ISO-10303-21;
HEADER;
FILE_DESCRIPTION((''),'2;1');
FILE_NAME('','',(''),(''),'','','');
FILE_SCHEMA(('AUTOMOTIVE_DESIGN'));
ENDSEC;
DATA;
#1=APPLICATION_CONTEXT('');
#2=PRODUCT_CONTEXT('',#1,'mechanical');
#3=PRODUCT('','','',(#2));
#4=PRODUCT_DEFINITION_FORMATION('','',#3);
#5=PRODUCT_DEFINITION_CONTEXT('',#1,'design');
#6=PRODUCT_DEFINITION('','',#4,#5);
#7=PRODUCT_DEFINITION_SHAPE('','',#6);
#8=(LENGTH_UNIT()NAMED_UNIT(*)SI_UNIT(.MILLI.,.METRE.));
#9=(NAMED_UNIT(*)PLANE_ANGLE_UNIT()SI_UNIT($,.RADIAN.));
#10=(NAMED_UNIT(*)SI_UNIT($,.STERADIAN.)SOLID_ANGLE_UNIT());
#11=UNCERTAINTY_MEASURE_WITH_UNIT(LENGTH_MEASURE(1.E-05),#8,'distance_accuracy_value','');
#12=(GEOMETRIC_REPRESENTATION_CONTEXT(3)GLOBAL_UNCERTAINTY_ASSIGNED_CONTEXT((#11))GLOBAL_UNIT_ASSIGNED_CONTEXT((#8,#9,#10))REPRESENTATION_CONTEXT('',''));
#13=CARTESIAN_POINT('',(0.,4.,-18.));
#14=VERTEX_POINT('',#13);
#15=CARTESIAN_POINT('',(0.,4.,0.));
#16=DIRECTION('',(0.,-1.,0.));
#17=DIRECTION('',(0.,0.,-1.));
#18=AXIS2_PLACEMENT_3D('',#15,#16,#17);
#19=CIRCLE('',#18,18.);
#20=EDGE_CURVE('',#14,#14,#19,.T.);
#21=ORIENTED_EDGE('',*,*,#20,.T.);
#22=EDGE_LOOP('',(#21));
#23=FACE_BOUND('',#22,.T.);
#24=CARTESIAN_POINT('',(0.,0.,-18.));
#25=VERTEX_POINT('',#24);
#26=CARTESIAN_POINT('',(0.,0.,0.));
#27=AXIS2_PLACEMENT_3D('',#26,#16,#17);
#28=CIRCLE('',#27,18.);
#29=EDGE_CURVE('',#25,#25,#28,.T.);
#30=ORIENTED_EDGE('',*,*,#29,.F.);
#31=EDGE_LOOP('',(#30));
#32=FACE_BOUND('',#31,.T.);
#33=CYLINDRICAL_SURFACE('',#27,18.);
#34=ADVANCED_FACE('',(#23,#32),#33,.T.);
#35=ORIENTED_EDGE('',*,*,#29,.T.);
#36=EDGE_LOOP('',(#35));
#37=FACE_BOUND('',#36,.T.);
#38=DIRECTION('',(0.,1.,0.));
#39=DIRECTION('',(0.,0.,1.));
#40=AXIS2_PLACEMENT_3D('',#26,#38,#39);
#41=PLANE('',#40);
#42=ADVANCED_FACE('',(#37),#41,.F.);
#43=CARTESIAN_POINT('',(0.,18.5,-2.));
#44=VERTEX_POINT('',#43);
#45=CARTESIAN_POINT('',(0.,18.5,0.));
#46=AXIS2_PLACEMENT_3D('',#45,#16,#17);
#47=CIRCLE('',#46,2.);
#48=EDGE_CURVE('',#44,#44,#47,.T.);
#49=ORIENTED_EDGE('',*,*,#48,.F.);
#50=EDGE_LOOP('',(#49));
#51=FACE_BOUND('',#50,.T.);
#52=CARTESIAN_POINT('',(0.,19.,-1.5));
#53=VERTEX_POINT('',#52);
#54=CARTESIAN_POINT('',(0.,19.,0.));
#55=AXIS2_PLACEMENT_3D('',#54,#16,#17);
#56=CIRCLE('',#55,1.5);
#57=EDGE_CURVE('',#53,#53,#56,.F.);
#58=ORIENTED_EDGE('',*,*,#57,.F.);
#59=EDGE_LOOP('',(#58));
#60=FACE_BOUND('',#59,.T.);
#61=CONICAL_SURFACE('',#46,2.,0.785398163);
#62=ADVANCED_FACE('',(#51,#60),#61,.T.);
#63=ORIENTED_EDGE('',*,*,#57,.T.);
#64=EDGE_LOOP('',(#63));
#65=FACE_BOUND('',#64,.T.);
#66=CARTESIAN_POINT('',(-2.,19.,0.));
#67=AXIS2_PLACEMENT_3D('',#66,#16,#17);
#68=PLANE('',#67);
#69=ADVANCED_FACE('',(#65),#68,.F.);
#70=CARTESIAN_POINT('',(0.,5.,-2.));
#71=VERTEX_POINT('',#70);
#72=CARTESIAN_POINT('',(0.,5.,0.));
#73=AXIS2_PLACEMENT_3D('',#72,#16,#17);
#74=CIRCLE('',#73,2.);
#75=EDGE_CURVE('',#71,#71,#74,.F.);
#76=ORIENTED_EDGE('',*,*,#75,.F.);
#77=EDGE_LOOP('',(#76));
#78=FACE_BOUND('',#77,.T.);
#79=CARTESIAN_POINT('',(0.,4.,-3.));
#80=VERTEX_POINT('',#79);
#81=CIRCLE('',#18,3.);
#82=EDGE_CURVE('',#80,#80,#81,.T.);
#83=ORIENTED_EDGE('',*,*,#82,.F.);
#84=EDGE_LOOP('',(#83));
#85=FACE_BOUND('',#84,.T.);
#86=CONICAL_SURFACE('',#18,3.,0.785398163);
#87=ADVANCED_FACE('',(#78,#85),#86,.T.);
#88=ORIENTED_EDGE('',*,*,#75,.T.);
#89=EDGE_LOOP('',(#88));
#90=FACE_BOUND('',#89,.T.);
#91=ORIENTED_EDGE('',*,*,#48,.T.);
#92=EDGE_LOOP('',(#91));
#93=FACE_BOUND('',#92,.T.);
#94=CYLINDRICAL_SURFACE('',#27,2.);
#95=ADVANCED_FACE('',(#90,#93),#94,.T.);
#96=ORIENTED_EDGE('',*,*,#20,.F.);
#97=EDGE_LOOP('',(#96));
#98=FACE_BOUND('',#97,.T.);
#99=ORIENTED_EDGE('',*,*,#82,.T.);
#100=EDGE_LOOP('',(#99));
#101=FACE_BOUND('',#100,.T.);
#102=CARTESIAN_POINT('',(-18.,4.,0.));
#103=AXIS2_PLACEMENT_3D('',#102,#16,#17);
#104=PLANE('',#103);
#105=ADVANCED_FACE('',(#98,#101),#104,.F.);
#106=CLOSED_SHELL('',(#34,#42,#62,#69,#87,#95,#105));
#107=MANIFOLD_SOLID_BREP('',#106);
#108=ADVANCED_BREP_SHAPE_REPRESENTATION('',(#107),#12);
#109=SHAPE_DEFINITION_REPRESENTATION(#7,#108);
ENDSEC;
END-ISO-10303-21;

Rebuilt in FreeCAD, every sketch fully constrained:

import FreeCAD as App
import Part
import Sketcher

V = App.Vector
Q = App.Units.Quantity


def edges_at(feature, points):
    """Names of the edges that pass closest to the given points."""
    edges = feature.Shape.Edges
    near = lambda p: min(range(len(edges)), key=lambda i: edges[i].distToShape(Part.Vertex(*p))[0])
    return sorted({f"Edge{near(p) + 1}" for p in points})

doc = App.newDocument("Part")
params = doc.addObject("Spreadsheet::Sheet", "Params")
for row, (alias, value) in enumerate([
    ("sketch1_width", "18 mm"),
    ("sketch1_width2", "2 mm"),
    ("sketch1_height", "19 mm"),
    ("sketch1_height2", "15 mm"),
    ("revolution_angle", "360 deg"),
    ("chamfer_size", "1 mm"),
    ("chamfer2_size", "0.5 mm"),
], start=1):
    params.set(f"A{row}", alias)
    params.set(f"B{row}", "=" + value)
    params.setAlias(f"B{row}", alias)

body = doc.addObject("PartDesign::Body", "Body")

sketch1 = body.newObject("Sketcher::SketchObject", "Sketch")
sketch1.AttachmentSupport = (doc.getObject("XY_Plane"), [""])
sketch1.MapMode = "FlatFace"
sketch1.addGeometry(Part.LineSegment(V(-18, 0, 0), V(0, 0, 0)), False)
sketch1.addGeometry(Part.LineSegment(V(0, 0, 0), V(0, 19, 0)), False)
sketch1.addGeometry(Part.LineSegment(V(0, 19, 0), V(-2, 19, 0)), False)
sketch1.addGeometry(Part.LineSegment(V(-2, 19, 0), V(-2, 4, 0)), False)
sketch1.addGeometry(Part.LineSegment(V(-2, 4, 0), V(-18, 4, 0)), False)
sketch1.addGeometry(Part.LineSegment(V(-18, 4, 0), V(-18, 0, 0)), False)
sketch1.addConstraint(Sketcher.Constraint("Coincident", 0, 2, 1, 1))
sketch1.addConstraint(Sketcher.Constraint("Coincident", 1, 2, 2, 1))
sketch1.addConstraint(Sketcher.Constraint("Coincident", 2, 2, 3, 1))
sketch1.addConstraint(Sketcher.Constraint("Coincident", 3, 2, 4, 1))
sketch1.addConstraint(Sketcher.Constraint("Coincident", 4, 2, 5, 1))
sketch1.addConstraint(Sketcher.Constraint("Coincident", 5, 2, 0, 1))
sketch1.addConstraint(Sketcher.Constraint("Horizontal", 0))
sketch1.addConstraint(Sketcher.Constraint("Vertical", 1))
sketch1.addConstraint(Sketcher.Constraint("Horizontal", 2))
sketch1.addConstraint(Sketcher.Constraint("Vertical", 3))
sketch1.addConstraint(Sketcher.Constraint("Horizontal", 4))
sketch1.addConstraint(Sketcher.Constraint("Vertical", 5))
sketch1.addConstraint(Sketcher.Constraint("Coincident", 0, 2, -1, 1))
sketch1.addConstraint(Sketcher.Constraint("DistanceX", 0, 1, 0, 2, Q("18 mm")))
sketch1.addConstraint(Sketcher.Constraint("DistanceX", 2, 2, 2, 1, Q("2 mm")))
sketch1.addConstraint(Sketcher.Constraint("DistanceY", 1, 1, 1, 2, Q("19 mm")))
sketch1.addConstraint(Sketcher.Constraint("DistanceY", 3, 2, 3, 1, Q("15 mm")))
sketch1.setExpression("Constraints[13]", "Params.sketch1_width")
sketch1.setExpression("Constraints[14]", "Params.sketch1_width2")
sketch1.setExpression("Constraints[15]", "Params.sketch1_height")
sketch1.setExpression("Constraints[16]", "Params.sketch1_height2")
revolution = body.newObject("PartDesign::Revolution", "Revolution")
revolution.Profile = sketch1
revolution.ReferenceAxis = (sketch1, ["V_Axis"])
revolution.setExpression("Angle", "Params.revolution_angle")
doc.recompute()

chamfer = body.newObject("PartDesign::Chamfer", "Chamfer")
chamfer.Base = (revolution, edges_at(revolution, [(2, 4, 0)]))
chamfer.setExpression("Size", "Params.chamfer_size")
doc.recompute()

chamfer2 = body.newObject("PartDesign::Chamfer", "Chamfer001")
chamfer2.Base = (chamfer, edges_at(chamfer, [(2, 19, 0)]))
chamfer2.setExpression("Size", "Params.chamfer2_size")

doc.recompute()
